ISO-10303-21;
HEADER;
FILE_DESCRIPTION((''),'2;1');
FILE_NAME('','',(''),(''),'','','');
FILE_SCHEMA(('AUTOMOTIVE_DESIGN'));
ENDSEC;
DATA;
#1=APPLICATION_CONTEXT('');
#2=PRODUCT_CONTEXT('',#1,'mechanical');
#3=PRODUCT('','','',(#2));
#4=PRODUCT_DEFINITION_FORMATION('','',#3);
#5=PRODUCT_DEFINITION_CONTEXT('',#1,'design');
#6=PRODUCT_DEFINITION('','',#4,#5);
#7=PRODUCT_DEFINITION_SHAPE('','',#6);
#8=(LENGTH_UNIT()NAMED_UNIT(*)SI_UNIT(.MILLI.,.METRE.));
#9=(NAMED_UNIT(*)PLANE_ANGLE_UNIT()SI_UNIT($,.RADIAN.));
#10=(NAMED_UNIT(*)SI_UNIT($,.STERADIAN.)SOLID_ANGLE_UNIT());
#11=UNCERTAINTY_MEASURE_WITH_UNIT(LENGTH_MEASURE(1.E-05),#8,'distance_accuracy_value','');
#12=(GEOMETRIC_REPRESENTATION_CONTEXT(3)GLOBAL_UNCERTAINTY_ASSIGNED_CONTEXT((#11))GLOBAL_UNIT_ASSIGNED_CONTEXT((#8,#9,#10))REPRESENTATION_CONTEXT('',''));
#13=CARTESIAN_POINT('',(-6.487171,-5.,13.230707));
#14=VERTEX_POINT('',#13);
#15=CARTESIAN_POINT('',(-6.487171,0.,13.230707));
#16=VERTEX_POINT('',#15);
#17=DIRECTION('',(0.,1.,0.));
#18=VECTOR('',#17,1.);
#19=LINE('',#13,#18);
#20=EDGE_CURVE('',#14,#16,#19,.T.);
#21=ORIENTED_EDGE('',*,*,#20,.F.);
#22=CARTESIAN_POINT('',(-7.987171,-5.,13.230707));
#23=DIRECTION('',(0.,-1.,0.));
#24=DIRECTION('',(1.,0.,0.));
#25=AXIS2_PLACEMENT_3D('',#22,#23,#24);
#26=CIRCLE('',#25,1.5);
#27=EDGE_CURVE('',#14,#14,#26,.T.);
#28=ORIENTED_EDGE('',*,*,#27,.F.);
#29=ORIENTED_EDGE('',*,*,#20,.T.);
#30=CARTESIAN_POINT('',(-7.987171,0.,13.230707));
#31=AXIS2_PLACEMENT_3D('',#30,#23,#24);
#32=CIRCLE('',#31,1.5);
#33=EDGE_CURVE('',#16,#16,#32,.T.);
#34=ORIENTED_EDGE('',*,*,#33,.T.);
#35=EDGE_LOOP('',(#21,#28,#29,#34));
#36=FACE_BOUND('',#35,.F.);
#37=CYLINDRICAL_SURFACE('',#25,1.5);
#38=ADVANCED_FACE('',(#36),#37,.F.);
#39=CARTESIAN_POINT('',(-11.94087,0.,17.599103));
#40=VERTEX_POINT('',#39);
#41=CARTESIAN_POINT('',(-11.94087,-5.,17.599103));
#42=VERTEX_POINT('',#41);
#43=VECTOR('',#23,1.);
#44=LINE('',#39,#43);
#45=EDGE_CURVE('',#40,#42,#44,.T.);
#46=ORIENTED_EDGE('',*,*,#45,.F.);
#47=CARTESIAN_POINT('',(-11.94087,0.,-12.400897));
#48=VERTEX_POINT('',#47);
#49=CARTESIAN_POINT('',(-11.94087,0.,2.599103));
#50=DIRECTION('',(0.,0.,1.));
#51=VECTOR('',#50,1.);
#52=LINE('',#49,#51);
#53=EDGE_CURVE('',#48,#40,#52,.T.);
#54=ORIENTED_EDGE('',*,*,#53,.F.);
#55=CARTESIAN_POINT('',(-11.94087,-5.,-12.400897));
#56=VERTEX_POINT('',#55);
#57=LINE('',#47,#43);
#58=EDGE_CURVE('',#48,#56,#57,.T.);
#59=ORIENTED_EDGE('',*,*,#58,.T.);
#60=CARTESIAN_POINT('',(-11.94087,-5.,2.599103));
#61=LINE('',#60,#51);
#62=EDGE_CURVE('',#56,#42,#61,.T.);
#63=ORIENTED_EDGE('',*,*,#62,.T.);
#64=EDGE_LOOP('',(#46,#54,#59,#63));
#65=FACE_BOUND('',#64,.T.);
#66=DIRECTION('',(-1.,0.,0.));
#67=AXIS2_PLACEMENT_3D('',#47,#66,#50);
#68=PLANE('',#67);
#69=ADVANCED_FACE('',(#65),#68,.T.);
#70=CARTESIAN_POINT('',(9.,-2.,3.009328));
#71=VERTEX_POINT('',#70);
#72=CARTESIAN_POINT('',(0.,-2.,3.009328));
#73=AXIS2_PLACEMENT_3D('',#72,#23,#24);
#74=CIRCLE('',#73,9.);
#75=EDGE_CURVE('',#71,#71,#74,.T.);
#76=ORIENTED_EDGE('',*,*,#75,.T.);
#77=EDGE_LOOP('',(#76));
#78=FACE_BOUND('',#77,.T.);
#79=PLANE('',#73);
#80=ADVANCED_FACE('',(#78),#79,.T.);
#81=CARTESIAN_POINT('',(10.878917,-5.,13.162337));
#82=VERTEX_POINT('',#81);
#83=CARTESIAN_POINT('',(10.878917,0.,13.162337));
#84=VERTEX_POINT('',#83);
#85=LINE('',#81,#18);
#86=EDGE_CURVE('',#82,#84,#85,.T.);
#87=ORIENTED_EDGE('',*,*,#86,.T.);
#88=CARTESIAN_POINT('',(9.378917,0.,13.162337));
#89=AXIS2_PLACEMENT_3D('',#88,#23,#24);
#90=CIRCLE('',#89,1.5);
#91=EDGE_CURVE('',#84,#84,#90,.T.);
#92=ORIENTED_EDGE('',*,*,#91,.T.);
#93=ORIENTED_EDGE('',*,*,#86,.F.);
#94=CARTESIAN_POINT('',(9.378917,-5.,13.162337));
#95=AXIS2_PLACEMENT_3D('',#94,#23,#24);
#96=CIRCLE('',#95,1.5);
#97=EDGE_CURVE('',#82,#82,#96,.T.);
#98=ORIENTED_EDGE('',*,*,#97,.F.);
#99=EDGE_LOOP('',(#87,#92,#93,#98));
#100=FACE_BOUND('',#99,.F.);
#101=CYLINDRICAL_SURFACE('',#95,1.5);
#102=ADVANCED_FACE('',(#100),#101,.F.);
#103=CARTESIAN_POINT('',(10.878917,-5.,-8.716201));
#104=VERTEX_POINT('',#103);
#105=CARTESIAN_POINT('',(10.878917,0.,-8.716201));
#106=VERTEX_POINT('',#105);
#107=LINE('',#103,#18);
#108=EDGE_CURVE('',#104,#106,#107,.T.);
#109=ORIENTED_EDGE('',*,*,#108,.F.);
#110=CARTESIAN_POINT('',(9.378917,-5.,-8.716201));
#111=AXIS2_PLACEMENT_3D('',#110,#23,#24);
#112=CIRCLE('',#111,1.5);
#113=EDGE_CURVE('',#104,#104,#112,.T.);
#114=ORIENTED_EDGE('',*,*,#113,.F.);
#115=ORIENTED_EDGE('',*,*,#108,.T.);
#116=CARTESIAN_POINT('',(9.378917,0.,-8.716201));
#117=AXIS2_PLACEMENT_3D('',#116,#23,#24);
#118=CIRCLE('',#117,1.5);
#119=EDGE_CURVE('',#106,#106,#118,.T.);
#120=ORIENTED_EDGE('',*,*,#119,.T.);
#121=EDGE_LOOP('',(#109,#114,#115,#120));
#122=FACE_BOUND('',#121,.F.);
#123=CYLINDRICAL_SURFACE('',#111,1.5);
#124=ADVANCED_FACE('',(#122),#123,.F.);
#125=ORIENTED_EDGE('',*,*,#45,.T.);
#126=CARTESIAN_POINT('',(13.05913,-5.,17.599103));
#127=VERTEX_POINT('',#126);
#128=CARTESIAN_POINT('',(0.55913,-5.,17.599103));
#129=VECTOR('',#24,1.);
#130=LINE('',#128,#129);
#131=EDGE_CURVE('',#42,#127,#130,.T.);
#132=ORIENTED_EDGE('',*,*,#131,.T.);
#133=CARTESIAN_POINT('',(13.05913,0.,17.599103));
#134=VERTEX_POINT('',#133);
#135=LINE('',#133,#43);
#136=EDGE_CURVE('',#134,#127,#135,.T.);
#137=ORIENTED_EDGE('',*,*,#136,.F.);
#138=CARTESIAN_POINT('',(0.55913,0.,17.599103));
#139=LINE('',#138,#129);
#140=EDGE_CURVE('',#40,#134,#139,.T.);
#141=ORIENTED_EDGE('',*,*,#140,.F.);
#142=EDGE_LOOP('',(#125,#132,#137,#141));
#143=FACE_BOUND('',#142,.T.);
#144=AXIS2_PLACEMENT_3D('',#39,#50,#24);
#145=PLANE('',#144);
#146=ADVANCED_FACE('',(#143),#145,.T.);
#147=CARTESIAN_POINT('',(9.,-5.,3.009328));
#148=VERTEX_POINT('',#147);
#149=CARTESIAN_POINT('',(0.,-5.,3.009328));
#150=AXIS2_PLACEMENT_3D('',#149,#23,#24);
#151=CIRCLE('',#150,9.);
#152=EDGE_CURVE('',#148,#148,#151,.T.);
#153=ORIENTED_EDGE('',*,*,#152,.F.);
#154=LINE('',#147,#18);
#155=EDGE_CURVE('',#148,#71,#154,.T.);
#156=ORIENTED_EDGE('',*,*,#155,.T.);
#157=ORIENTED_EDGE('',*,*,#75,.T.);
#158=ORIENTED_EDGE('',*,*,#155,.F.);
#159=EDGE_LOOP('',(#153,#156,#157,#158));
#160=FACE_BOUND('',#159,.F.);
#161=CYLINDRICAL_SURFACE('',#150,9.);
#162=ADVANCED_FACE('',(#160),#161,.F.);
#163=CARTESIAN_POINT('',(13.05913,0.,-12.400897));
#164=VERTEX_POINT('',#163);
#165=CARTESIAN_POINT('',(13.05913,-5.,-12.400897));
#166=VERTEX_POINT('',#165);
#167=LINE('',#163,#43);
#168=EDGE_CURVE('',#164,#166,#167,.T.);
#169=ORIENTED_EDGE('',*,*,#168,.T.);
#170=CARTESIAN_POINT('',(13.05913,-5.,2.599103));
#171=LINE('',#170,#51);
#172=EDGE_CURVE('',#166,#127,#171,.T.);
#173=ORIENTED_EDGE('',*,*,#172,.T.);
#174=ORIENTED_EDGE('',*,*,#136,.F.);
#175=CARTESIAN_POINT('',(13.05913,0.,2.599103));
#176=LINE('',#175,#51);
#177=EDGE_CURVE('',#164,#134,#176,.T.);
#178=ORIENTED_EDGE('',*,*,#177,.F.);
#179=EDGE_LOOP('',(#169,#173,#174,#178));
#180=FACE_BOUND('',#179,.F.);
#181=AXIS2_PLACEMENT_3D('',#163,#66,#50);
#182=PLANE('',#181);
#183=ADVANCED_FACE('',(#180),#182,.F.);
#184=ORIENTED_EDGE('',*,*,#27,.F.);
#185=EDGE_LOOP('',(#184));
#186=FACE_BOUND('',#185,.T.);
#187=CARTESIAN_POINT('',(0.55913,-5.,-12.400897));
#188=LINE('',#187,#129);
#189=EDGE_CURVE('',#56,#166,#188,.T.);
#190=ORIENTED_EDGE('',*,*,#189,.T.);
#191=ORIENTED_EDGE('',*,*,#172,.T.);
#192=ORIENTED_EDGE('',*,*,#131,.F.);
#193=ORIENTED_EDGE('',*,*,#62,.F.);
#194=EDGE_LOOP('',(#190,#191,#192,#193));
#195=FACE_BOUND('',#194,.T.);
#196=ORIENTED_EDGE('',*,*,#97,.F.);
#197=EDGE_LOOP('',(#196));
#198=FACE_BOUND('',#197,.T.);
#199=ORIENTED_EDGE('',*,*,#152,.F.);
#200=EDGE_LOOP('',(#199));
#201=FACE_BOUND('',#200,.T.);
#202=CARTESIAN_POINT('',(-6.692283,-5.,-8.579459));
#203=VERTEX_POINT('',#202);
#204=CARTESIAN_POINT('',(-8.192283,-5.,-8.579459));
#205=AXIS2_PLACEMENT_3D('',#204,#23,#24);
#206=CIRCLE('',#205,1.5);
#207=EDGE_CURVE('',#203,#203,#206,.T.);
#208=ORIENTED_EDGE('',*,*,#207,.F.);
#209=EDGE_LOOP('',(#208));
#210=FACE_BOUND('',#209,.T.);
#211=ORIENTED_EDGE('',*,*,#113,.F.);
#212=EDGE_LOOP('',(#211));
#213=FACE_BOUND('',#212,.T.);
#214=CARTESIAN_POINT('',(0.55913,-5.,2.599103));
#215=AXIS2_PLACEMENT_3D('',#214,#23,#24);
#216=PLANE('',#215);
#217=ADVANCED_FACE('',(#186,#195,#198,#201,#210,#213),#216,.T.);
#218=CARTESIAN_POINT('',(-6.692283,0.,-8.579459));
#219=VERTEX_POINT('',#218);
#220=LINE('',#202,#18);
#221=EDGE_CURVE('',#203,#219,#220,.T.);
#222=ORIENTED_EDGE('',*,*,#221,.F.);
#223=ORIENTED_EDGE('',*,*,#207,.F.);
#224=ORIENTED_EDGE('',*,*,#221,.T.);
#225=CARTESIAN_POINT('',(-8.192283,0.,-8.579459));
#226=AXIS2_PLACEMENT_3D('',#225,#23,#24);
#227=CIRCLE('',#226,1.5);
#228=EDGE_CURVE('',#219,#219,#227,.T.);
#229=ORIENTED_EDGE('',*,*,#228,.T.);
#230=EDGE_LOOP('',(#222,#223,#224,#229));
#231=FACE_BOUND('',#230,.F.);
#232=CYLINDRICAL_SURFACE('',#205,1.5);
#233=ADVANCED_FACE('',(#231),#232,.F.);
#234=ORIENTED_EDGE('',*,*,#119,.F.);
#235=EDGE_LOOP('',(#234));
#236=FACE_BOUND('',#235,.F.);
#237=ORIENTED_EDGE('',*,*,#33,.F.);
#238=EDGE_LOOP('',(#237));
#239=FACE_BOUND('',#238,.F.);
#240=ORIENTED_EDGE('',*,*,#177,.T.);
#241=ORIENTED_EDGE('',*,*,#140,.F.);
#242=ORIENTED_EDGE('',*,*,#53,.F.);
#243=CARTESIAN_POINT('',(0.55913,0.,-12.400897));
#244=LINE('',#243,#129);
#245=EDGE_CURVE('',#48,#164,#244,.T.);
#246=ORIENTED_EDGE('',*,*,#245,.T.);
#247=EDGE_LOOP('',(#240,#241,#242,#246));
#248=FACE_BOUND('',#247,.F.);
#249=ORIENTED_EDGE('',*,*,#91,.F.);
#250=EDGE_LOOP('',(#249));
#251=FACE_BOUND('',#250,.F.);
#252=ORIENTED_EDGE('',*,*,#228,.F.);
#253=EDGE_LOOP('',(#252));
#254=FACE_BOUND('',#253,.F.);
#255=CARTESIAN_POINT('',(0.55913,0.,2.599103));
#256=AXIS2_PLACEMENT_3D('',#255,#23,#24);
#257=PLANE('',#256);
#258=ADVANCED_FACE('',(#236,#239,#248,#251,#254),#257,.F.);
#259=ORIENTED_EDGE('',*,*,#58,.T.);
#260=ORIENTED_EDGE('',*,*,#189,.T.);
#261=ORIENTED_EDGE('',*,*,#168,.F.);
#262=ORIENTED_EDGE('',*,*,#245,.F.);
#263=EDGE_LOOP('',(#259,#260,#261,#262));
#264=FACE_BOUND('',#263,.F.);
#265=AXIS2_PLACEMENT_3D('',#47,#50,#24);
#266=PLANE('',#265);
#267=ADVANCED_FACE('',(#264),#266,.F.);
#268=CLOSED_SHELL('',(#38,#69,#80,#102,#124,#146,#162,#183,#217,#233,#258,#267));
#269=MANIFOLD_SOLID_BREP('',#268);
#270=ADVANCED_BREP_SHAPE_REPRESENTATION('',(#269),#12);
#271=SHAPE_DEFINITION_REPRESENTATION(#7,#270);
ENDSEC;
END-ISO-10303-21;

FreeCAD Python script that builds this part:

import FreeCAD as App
import Part
import Sketcher
from FreeCAD import Vector


def add_polygon(sketch, points):
    """Adds a closed chain of lines whose ends are joined by coincident constraints."""
    first, n = sketch.GeometryCount, len(points)
    for a, b in zip(points, points[1:] + points[:1]):
        sketch.addGeometry(Part.LineSegment(App.Vector(*a, 0), App.Vector(*b, 0)), False)
    for i in range(n):
        sketch.addConstraint(Sketcher.Constraint("Coincident", first + i, 2, first + (i + 1) % n, 1))

doc = App.newDocument("Part")
body = doc.addObject("PartDesign::Body", "Body")

sketch1 = doc.addObject("Sketcher::SketchObject", "Sketch")
body.addObject(sketch1)
sketch1.AttachmentSupport = (doc.XZ_Plane, [""])
sketch1.MapMode = "FlatFace"
add_polygon(sketch1, [(-12, 18), (-12, -12), (13, -12), (13, 18)])
sketch1.addConstraint(Sketcher.Constraint("Vertical", 0))
sketch1.addConstraint(Sketcher.Constraint("Horizontal", 1))
sketch1.addConstraint(Sketcher.Constraint("Vertical", 2))
sketch1.addConstraint(Sketcher.Constraint("Horizontal", 3))
sketch1.addConstraint(Sketcher.Constraint("DistanceX", 1, 1, 1, 2, 25.0))
sketch1.addConstraint(Sketcher.Constraint("DistanceY", 0, 2, 0, 1, 30.0))
sketch1.addConstraint(Sketcher.Constraint("DistanceX", 0, 2, -1, 1, 11.94087))
sketch1.addConstraint(Sketcher.Constraint("DistanceY", 0, 2, -1, 1, 12.400897))
pad1 = doc.addObject("PartDesign::Pad", "Pad")
body.addObject(pad1)
pad1.Profile = sketch1
pad1.Length = 5

sketch2 = doc.addObject("Sketcher::SketchObject", "Sketch001")
body.addObject(sketch2)
sketch2.AttachmentSupport = (doc.XZ_Plane, [""])
sketch2.MapMode = "FlatFace"
sketch2.AttachmentOffset = App.Placement(Vector(0, 0, 5), App.Rotation())
sketch2.addGeometry(Part.Circle(Vector(-8, 13.2, 0), Vector(0, 0, 1), 1.5), False)
sketch2.addGeometry(Part.Circle(Vector(9.4, 13.2, 0), Vector(0, 0, 1), 1.5), False)
sketch2.addGeometry(Part.Circle(Vector(-8.2, -8.6, 0), Vector(0, 0, 1), 1.5), False)
sketch2.addGeometry(Part.Circle(Vector(9.4, -8.7, 0), Vector(0, 0, 1), 1.5), False)
sketch2.addConstraint(Sketcher.Constraint("Equal", 0, 1))
sketch2.addConstraint(Sketcher.Constraint("Equal", 1, 2))
sketch2.addConstraint(Sketcher.Constraint("Equal", 2, 3))
sketch2.addConstraint(Sketcher.Constraint("Vertical", 1, 3, 3, 3))
sketch2.addConstraint(Sketcher.Constraint("Diameter", 0, 3.0))
sketch2.addConstraint(Sketcher.Constraint("DistanceY", 3, 3, -1, 1, 8.716201))
sketch2.addConstraint(Sketcher.Constraint("DistanceX", 2, 3, 1, 3, 17.5712))
sketch2.addConstraint(Sketcher.Constraint("DistanceX", 0, 3, -1, 1, 7.987171))
sketch2.addConstraint(Sketcher.Constraint("DistanceY", 2, 3, -1, 1, 8.579459))
sketch2.addConstraint(Sketcher.Constraint("DistanceY", 1, 3, 0, 3, 0.06837))
sketch2.addConstraint(Sketcher.Constraint("DistanceX", 2, 3, 0, 3, 0.205112))
sketch2.addConstraint(Sketcher.Constraint("DistanceY", 3, 3, 0, 3, 21.946908))
pocket1 = doc.addObject("PartDesign::Pocket", "Pocket")
body.addObject(pocket1)
pocket1.Profile = sketch2
pocket1.Length = 25

sketch3 = doc.addObject("Sketcher::SketchObject", "Sketch002")
body.addObject(sketch3)
sketch3.AttachmentSupport = (doc.XZ_Plane, [""])
sketch3.MapMode = "FlatFace"
sketch3.AttachmentOffset = App.Placement(Vector(0, 0, 5), App.Rotation())
sketch3.addGeometry(Part.Circle(Vector(0, 3, 0), Vector(0, 0, 1), 9), False)
sketch3.addConstraint(Sketcher.Constraint("PointOnObject", 0, 3, -2))
sketch3.addConstraint(Sketcher.Constraint("Diameter", 0, 18.0))
sketch3.addConstraint(Sketcher.Constraint("DistanceY", -1, 1, 0, 3, 3.009328))
pocket2 = doc.addObject("PartDesign::Pocket", "Pocket001")
body.addObject(pocket2)
pocket2.Profile = sketch3
pocket2.Length = 3

doc.recompute()
